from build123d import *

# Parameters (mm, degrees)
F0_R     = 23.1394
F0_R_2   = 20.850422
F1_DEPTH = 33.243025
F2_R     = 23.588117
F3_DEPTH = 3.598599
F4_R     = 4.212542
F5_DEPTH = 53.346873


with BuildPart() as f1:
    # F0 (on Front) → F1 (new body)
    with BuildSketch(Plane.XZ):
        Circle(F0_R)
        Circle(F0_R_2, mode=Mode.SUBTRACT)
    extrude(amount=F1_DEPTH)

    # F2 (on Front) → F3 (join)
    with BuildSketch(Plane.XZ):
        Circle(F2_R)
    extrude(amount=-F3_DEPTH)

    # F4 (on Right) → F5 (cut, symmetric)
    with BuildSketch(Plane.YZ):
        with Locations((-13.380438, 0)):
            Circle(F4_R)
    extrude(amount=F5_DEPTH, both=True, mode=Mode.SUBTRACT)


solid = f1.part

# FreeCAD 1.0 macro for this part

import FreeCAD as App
import Part
import Sketcher
Q = App.Units.Quantity

doc = App.newDocument("Part")
params = doc.addObject("Spreadsheet::Sheet", "Params")
for row, (alias, value) in enumerate([
    ("sketch1_diameter", "1.822 in"),
    ("pad1_length", "33.243025 mm"),
    ("pad2_length", "3.598599 mm"),
    ("pocket1_length", "106.693746 mm"),
], start=1):
    params.set(f"A{row}", alias)
    params.set(f"B{row}", "=" + value)
    params.setAlias(f"B{row}", alias)

body = doc.addObject("PartDesign::Body", "Body")

# Sketch on XZ plane
sketch1 = body.newObject("Sketcher::SketchObject", "Sketch")
sketch1.AttachmentSupport = (doc.getObject("XZ_Plane"), [""])
sketch1.MapMode = "FlatFace"
sketch1.addGeometry(Part.Circle(App.Vector(0, 0, 0), App.Vector(0, 0, 1), 23), False)
sketch1.addGeometry(Part.Circle(App.Vector(0, 0, 0), App.Vector(0, 0, 1), 21), False)
sketch1.addConstraint(Sketcher.Constraint("Coincident", 0, 3, -1, 1))
sketch1.addConstraint(Sketcher.Constraint("Coincident", 1, 3, -1, 1))
sketch1.addConstraint(Sketcher.Constraint("Diameter", 0, Q("1.822 in")))
sketch1.addConstraint(Sketcher.Constraint("Diameter", 1, 41.700844))
sketch1.setExpression("Constraints[2]", "Params.sketch1_diameter")
pad1 = body.newObject("PartDesign::Pad", "Pad")
pad1.Profile = sketch1
pad1.setExpression("Length", "Params.pad1_length")

# Sketch on XZ plane
sketch2 = body.newObject("Sketcher::SketchObject", "Sketch001")
sketch2.AttachmentSupport = (doc.getObject("XZ_Plane"), [""])
sketch2.MapMode = "FlatFace"
sketch2.addGeometry(Part.Circle(App.Vector(0, 0, 0), App.Vector(0, 0, 1), 24), False)
sketch2.addConstraint(Sketcher.Constraint("Coincident", 0, 3, -1, 1))
sketch2.addConstraint(Sketcher.Constraint("Diameter", 0, 47.176234))
pad2 = body.newObject("PartDesign::Pad", "Pad001")
pad2.Profile = sketch2
pad2.setExpression("Length", "Params.pad2_length")
pad2.Reversed = True

# Sketch on YZ plane
sketch3 = body.newObject("Sketcher::SketchObject", "Sketch002")
sketch3.AttachmentSupport = (doc.getObject("YZ_Plane"), [""])
sketch3.MapMode = "FlatFace"
sketch3.addGeometry(Part.Circle(App.Vector(-13.4, 0, 0), App.Vector(0, 0, 1), 4.2), False)
sketch3.addConstraint(Sketcher.Constraint("PointOnObject", 0, 3, -1))
sketch3.addConstraint(Sketcher.Constraint("Diameter", 0, 8.425084))
sketch3.addConstraint(Sketcher.Constraint("DistanceX", 0, 3, -1, 1, 13.380438))
pocket1 = body.newObject("PartDesign::Pocket", "Pocket")
pocket1.Profile = sketch3
pocket1.setExpression("Length", "Params.pocket1_length")
pocket1.Midplane = True

doc.recompute()
